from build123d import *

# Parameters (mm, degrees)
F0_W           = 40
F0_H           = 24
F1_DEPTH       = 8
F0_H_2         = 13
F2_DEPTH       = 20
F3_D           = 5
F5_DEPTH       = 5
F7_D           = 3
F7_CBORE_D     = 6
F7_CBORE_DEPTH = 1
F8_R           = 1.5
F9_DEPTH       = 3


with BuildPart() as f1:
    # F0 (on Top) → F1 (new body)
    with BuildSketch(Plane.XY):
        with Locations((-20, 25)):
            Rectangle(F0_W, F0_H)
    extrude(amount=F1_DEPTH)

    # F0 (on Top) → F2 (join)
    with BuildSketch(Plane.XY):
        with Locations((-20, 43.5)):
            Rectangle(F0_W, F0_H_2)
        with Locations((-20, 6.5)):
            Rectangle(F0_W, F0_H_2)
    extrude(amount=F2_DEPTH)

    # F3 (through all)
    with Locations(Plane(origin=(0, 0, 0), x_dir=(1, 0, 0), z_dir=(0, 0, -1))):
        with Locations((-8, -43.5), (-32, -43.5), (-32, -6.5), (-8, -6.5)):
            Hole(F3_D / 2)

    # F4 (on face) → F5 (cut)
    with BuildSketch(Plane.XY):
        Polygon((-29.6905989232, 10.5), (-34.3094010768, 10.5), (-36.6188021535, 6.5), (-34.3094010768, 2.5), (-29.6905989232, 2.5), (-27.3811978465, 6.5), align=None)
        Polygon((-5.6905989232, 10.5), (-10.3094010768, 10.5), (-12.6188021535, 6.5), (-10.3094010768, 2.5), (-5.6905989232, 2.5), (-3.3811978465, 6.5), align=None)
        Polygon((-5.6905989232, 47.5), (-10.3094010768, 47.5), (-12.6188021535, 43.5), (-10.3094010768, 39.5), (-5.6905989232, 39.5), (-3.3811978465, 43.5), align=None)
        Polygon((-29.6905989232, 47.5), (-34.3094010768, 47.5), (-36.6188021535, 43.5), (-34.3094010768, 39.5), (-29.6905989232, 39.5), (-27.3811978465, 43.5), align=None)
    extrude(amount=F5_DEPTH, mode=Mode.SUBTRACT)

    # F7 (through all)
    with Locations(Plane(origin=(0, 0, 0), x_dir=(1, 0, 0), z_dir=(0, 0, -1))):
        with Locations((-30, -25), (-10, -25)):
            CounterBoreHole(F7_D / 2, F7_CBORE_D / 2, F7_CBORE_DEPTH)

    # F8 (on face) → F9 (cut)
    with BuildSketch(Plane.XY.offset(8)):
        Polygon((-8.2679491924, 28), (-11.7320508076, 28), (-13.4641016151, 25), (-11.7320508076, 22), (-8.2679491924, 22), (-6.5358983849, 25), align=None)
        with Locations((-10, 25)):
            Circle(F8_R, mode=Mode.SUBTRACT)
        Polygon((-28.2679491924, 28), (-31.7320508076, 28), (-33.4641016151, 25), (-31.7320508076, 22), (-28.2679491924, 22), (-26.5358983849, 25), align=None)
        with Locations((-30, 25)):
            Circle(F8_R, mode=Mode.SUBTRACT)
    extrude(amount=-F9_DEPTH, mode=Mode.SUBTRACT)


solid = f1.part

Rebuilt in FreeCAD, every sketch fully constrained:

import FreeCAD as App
import Part
import Sketcher
from FreeCAD import Vector
Q = App.Units.Quantity

doc = App.newDocument("Part")
body = doc.addObject("PartDesign::Body", "Body")

# Sketch on XY plane
sketch1 = body.newObject("Sketcher::SketchObject", "Sketch")
sketch1.AttachmentSupport = (doc.getObject("XY_Plane"), [""])
sketch1.MapMode = "FlatFace"
sketch1.addGeometry([
    Part.LineSegment(Vector(-40, 37, 0), Vector(-40, 13, 0)),
    Part.LineSegment(Vector(-40, 13, 0), Vector(0, 13, 0)),
    Part.LineSegment(Vector(0, 13, 0), Vector(0, 37, 0)),
    Part.LineSegment(Vector(0, 37, 0), Vector(-40, 37, 0)),
], False)
sketch1.addConstraint([
    Sketcher.Constraint("Coincident", 0, 2, 1, 1),
    Sketcher.Constraint("Coincident", 1, 2, 2, 1),
    Sketcher.Constraint("Coincident", 2, 2, 3, 1),
    Sketcher.Constraint("Coincident", 3, 2, 0, 1),
    Sketcher.Constraint("Vertical", 0),
    Sketcher.Constraint("Horizontal", 1),
    Sketcher.Constraint("Vertical", 2),
    Sketcher.Constraint("Horizontal", 3),
    Sketcher.Constraint("PointOnObject", 1, 2, -2),
    Sketcher.Constraint("DistanceX", 1, 1, 1, 2, Q("40 mm")),
    Sketcher.Constraint("DistanceY", 0, 2, 0, 1, Q("24 mm")),
    Sketcher.Constraint("DistanceY", -1, 1, 0, 2, Q("13 mm")),
])
pad1 = body.newObject("PartDesign::Pad", "Pad")
pad1.Profile = sketch1
pad1.Length = 8

# Sketch on XY plane
sketch2 = body.newObject("Sketcher::SketchObject", "Sketch001")
sketch2.AttachmentSupport = (doc.getObject("XY_Plane"), [""])
sketch2.MapMode = "FlatFace"
sketch2.addGeometry([
    Part.LineSegment(Vector(-40, 50, 0), Vector(-40, 37, 0)),  # 0
    Part.LineSegment(Vector(-40, 37, 0), Vector(0, 37, 0)),  # 1
    Part.LineSegment(Vector(0, 37, 0), Vector(0, 50, 0)),  # 2
    Part.LineSegment(Vector(0, 50, 0), Vector(-40, 50, 0)),  # 3
    Part.LineSegment(Vector(-40, 13, 0), Vector(-40, 0, 0)),  # 4
    Part.LineSegment(Vector(-40, 0, 0), Vector(0, 0, 0)),  # 5
    Part.LineSegment(Vector(0, 0, 0), Vector(0, 13, 0)),  # 6
    Part.LineSegment(Vector(0, 13, 0), Vector(-40, 13, 0)),  # 7
], False)
sketch2.addConstraint([
    Sketcher.Constraint("Coincident", 0, 2, 1, 1),
    Sketcher.Constraint("Coincident", 1, 2, 2, 1),
    Sketcher.Constraint("Coincident", 2, 2, 3, 1),
    Sketcher.Constraint("Coincident", 3, 2, 0, 1),
    Sketcher.Constraint("Coincident", 4, 2, 5, 1),
    Sketcher.Constraint("Coincident", 5, 2, 6, 1),
    Sketcher.Constraint("Coincident", 6, 2, 7, 1),
    Sketcher.Constraint("Coincident", 7, 2, 4, 1),
    Sketcher.Constraint("Vertical", 0),
    Sketcher.Constraint("Horizontal", 1),
    Sketcher.Constraint("Vertical", 2),
    Sketcher.Constraint("Horizontal", 3),
    Sketcher.Constraint("Vertical", 4),
    Sketcher.Constraint("Horizontal", 5),
    Sketcher.Constraint("Vertical", 6),
    Sketcher.Constraint("Horizontal", 7),
    Sketcher.Constraint("Coincident", 5, 2, -1, 1),
    Sketcher.Constraint("PointOnObject", 1, 2, -2),
    Sketcher.Constraint("Vertical", 3, 2, 4, 2),
    Sketcher.Constraint("Equal", 2, 4),
    Sketcher.Constraint("DistanceX", 1, 1, 1, 2, Q("40 mm")),
    Sketcher.Constraint("DistanceY", 0, 2, 0, 1, Q("13 mm")),
    Sketcher.Constraint("DistanceY", -1, 1, 0, 2, Q("37 mm")),
])
pad2 = body.newObject("PartDesign::Pad", "Pad001")
pad2.Profile = sketch2
pad2.Length = 20

# Sketch on XY plane
sketch3 = body.newObject("Sketcher::SketchObject", "Sketch002")
sketch3.AttachmentSupport = (doc.getObject("XY_Plane"), [""])
sketch3.MapMode = "FlatFace"
sketch3.addGeometry([
    Part.Circle(Vector(-8, 43.5, 0), Vector(0, 0, 1), 2.5),
    Part.Circle(Vector(-32, 43.5, 0), Vector(0, 0, 1), 2.5),
    Part.Circle(Vector(-32, 6.5, 0), Vector(0, 0, 1), 2.5),
    Part.Circle(Vector(-8, 6.5, 0), Vector(0, 0, 1), 2.5),
], False)
sketch3.addConstraint([
    Sketcher.Constraint("Equal", 0, 1),
    Sketcher.Constraint("Equal", 1, 2),
    Sketcher.Constraint("Equal", 2, 3),
    Sketcher.Constraint("Horizontal", 0, 3, 1, 3),
    Sketcher.Constraint("Horizontal", 2, 3, 3, 3),
    Sketcher.Constraint("Vertical", 1, 3, 2, 3),
    Sketcher.Constraint("Vertical", 0, 3, 3, 3),
    Sketcher.Constraint("Diameter", 0, Q("5 mm")),
    Sketcher.Constraint("DistanceX", 0, 3, -1, 1, Q("8 mm")),
    Sketcher.Constraint("DistanceX", 1, 3, -1, 1, Q("32 mm")),
    Sketcher.Constraint("DistanceY", 2, 3, 1, 3, Q("37 mm")),
    Sketcher.Constraint("DistanceY", -1, 1, 0, 3, Q("43.5 mm")),
])
doc.recompute()
hole = body.newObject("PartDesign::Hole", "Hole")
hole.Profile = sketch3
hole.ThreadType = "None"
hole.Diameter = 5
hole.DepthType = "ThroughAll"
hole.Reversed = True

# Sketch on XY plane
sketch4 = body.newObject("Sketcher::SketchObject", "Sketch003")
sketch4.AttachmentSupport = (doc.getObject("XY_Plane"), [""])
sketch4.MapMode = "FlatFace"
sketch4.addGeometry([
    Part.LineSegment(Vector(-29.7, 10.5, 0), Vector(-34.3, 10.5, 0)),  # 0
    Part.LineSegment(Vector(-34.3, 10.5, 0), Vector(-36.6, 6.5, 0)),  # 1
    Part.LineSegment(Vector(-36.6, 6.5, 0), Vector(-34.3, 2.5, 0)),  # 2
    Part.LineSegment(Vector(-34.3, 2.5, 0), Vector(-29.7, 2.5, 0)),  # 3
    Part.LineSegment(Vector(-29.7, 2.5, 0), Vector(-27.4, 6.5, 0)),  # 4
    Part.LineSegment(Vector(-27.4, 6.5, 0), Vector(-29.7, 10.5, 0)),  # 5
    Part.LineSegment(Vector(-5.7, 10.5, 0), Vector(-10.3, 10.5, 0)),  # 6
    Part.LineSegment(Vector(-10.3, 10.5, 0), Vector(-12.6, 6.5, 0)),  # 7
    Part.LineSegment(Vector(-12.6, 6.5, 0), Vector(-10.3, 2.5, 0)),  # 8
    Part.LineSegment(Vector(-10.3, 2.5, 0), Vector(-5.7, 2.5, 0)),  # 9
    Part.LineSegment(Vector(-5.7, 2.5, 0), Vector(-3.4, 6.5, 0)),  # 10
    Part.LineSegment(Vector(-3.4, 6.5, 0), Vector(-5.7, 10.5, 0)),  # 11
    Part.LineSegment(Vector(-5.7, 47.5, 0), Vector(-10.3, 47.5, 0)),  # 12
    Part.LineSegment(Vector(-10.3, 47.5, 0), Vector(-12.6, 43.5, 0)),  # 13
    Part.LineSegment(Vector(-12.6, 43.5, 0), Vector(-10.3, 39.5, 0)),  # 14
    Part.LineSegment(Vector(-10.3, 39.5, 0), Vector(-5.7, 39.5, 0)),  # 15
    Part.LineSegment(Vector(-5.7, 39.5, 0), Vector(-3.4, 43.5, 0)),  # 16
    Part.LineSegment(Vector(-3.4, 43.5, 0), Vector(-5.7, 47.5, 0)),  # 17
    Part.LineSegment(Vector(-29.7, 47.5, 0), Vector(-34.3, 47.5, 0)),  # 18
    Part.LineSegment(Vector(-34.3, 47.5, 0), Vector(-36.6, 43.5, 0)),  # 19
    Part.LineSegment(Vector(-36.6, 43.5, 0), Vector(-34.3, 39.5, 0)),  # 20
    Part.LineSegment(Vector(-34.3, 39.5, 0), Vector(-29.7, 39.5, 0)),  # 21
    Part.LineSegment(Vector(-29.7, 39.5, 0), Vector(-27.4, 43.5, 0)),  # 22
    Part.LineSegment(Vector(-27.4, 43.5, 0), Vector(-29.7, 47.5, 0)),  # 23
], False)
sketch4.addConstraint([
    Sketcher.Constraint("Coincident", 0, 2, 1, 1),
    Sketcher.Constraint("Coincident", 1, 2, 2, 1),
    Sketcher.Constraint("Coincident", 2, 2, 3, 1),
    Sketcher.Constraint("Coincident", 3, 2, 4, 1),
    Sketcher.Constraint("Coincident", 4, 2, 5, 1),
    Sketcher.Constraint("Coincident", 5, 2, 0, 1),
    Sketcher.Constraint("Coincident", 6, 2, 7, 1),
    Sketcher.Constraint("Coincident", 7, 2, 8, 1),
    Sketcher.Constraint("Coincident", 8, 2, 9, 1),
    Sketcher.Constraint("Coincident", 9, 2, 10, 1),
    Sketcher.Constraint("Coincident", 10, 2, 11, 1),
    Sketcher.Constraint("Coincident", 11, 2, 6, 1),
    Sketcher.Constraint("Coincident", 12, 2, 13, 1),
    Sketcher.Constraint("Coincident", 13, 2, 14, 1),
    Sketcher.Constraint("Coincident", 14, 2, 15, 1),
    Sketcher.Constraint("Coincident", 15, 2, 16, 1),
    Sketcher.Constraint("Coincident", 16, 2, 17, 1),
    Sketcher.Constraint("Coincident", 17, 2, 12, 1),
    Sketcher.Constraint("Coincident", 18, 2, 19, 1),
    Sketcher.Constraint("Coincident", 19, 2, 20, 1),
    Sketcher.Constraint("Coincident", 20, 2, 21, 1),
    Sketcher.Constraint("Coincident", 21, 2, 22, 1),
    Sketcher.Constraint("Coincident", 22, 2, 23, 1),
    Sketcher.Constraint("Coincident", 23, 2, 18, 1),
    Sketcher.Constraint("Horizontal", 0),
    Sketcher.Constraint("Horizontal", 3),
    Sketcher.Constraint("Horizontal", 6),
    Sketcher.Constraint("Horizontal", 9),
    Sketcher.Constraint("Horizontal", 12),
    Sketcher.Constraint("Horizontal", 15),
    Sketcher.Constraint("Horizontal", 18),
    Sketcher.Constraint("Horizontal", 21),
    Sketcher.Constraint("Parallel", 1, 4),
    Sketcher.Constraint("Parallel", 2, 5),
    Sketcher.Constraint("Parallel", 4, 7),
    Sketcher.Constraint("Parallel", 5, 8),
    Sketcher.Constraint("Parallel", 7, 10),
    Sketcher.Constraint("Parallel", 8, 11),
    Sketcher.Constraint("Parallel", 10, 13),
    Sketcher.Constraint("Parallel", 11, 14),
    Sketcher.Constraint("Parallel", 13, 16),
    Sketcher.Constraint("Parallel", 14, 17),
    Sketcher.Constraint("Parallel", 16, 19),
    Sketcher.Constraint("Parallel", 17, 20),
    Sketcher.Constraint("Parallel", 19, 22),
    Sketcher.Constraint("Parallel", 20, 23),
    Sketcher.Constraint("Horizontal", 1, 2, 4, 2),
    Sketcher.Constraint("Horizontal", 5, 2, 6, 2),
    Sketcher.Constraint("Horizontal", 4, 2, 7, 2),
    Sketcher.Constraint("Horizontal", 3, 2, 8, 2),
    Sketcher.Constraint("Horizontal", 7, 2, 10, 2),
    Sketcher.Constraint("Horizontal", 13, 2, 16, 2),
    Sketcher.Constraint("Horizontal", 17, 2, 18, 2),
    Sketcher.Constraint("Horizontal", 16, 2, 19, 2),
    Sketcher.Constraint("Horizontal", 15, 2, 20, 2),
    Sketcher.Constraint("Horizontal", 19, 2, 22, 2),
    Sketcher.Constraint("Vertical", 0, 2, 2, 2),
    Sketcher.Constraint("Vertical", 3, 2, 5, 2),
    Sketcher.Constraint("Vertical", 8, 2, 12, 2),
    Sketcher.Constraint("Vertical", 7, 2, 13, 2),
    Sketcher.Constraint("Vertical", 12, 2, 14, 2),
    Sketcher.Constraint("Vertical", 11, 2, 15, 2),
    Sketcher.Constraint("Vertical", 2, 2, 18, 2),
    Sketcher.Constraint("Vertical", 5, 2, 21, 2),
    Sketcher.Constraint("Equal", 3, 6),
    Sketcher.Constraint("Angle", 1, Q("-120 deg")),
    Sketcher.Constraint("DistanceY", 1, 2, 0, 2, Q("4 mm")),
    Sketcher.Constraint("DistanceX", 0, 2, 6, 2, Q("24 mm")),
    Sketcher.Constraint("DistanceY", 6, 2, 12, 2, Q("37 mm")),
    Sketcher.Constraint("DistanceY", -1, 1, 0, 2, Q("10.5 mm")),
    Sketcher.Constraint("DistanceX", 0, 2, -1, 1, Q("34.309401 mm")),
    Sketcher.Constraint("DistanceX", 3, 2, -1, 1, Q("29.690599 mm")),
])
pocket1 = body.newObject("PartDesign::Pocket", "Pocket")
pocket1.Profile = sketch4
pocket1.Length = 5
pocket1.Reversed = True

# Sketch on XY plane
sketch5 = body.newObject("Sketcher::SketchObject", "Sketch004")
sketch5.AttachmentSupport = (doc.getObject("XY_Plane"), [""])
sketch5.MapMode = "FlatFace"
sketch5.addGeometry([
    Part.Circle(Vector(-30, 25, 0), Vector(0, 0, 1), 1.5),
    Part.Circle(Vector(-10, 25, 0), Vector(0, 0, 1), 1.5),
], False)
sketch5.addConstraint([
    Sketcher.Constraint("Equal", 0, 1),
    Sketcher.Constraint("Horizontal", 0, 3, 1, 3),
    Sketcher.Constraint("Diameter", 0, Q("3 mm")),
    Sketcher.Constraint("DistanceX", 0, 3, -1, 1, Q("30 mm")),
    Sketcher.Constraint("DistanceY", -1, 1, 0, 3, Q("25 mm")),
    Sketcher.Constraint("DistanceX", 1, 3, -1, 1, Q("10 mm")),
])
doc.recompute()
hole2 = body.newObject("PartDesign::Hole", "Hole001")
hole2.Profile = sketch5
hole2.ThreadType = "None"
hole2.Diameter = 3
hole2.DepthType = "ThroughAll"
hole2.HoleCutType = "Counterbore"
hole2.HoleCutDiameter = 6
hole2.HoleCutDepth = 1
hole2.Reversed = True

# Sketch on XY plane
sketch6 = body.newObject("Sketcher::SketchObject", "Sketch005")
sketch6.AttachmentSupport = (doc.getObject("XY_Plane"), [""])
sketch6.MapMode = "FlatFace"
sketch6.AttachmentOffset = App.Placement(Vector(0, 0, 8), App.Rotation())
sketch6.addGeometry([
    Part.LineSegment(Vector(-8.3, 28, 0), Vector(-11.7, 28, 0)),  # 0
    Part.LineSegment(Vector(-11.7, 28, 0), Vector(-13.5, 25, 0)),  # 1
    Part.LineSegment(Vector(-13.5, 25, 0), Vector(-11.7, 22, 0)),  # 2
    Part.LineSegment(Vector(-11.7, 22, 0), Vector(-8.3, 22, 0)),  # 3
    Part.LineSegment(Vector(-8.3, 22, 0), Vector(-6.5, 25, 0)),  # 4
    Part.LineSegment(Vector(-6.5, 25, 0), Vector(-8.3, 28, 0)),  # 5
    Part.Circle(Vector(-10, 25, 0), Vector(0, 0, 1), 1.5),  # 6
    Part.LineSegment(Vector(-28.3, 28, 0), Vector(-31.7, 28, 0)),  # 7
    Part.LineSegment(Vector(-31.7, 28, 0), Vector(-33.5, 25, 0)),  # 8
    Part.LineSegment(Vector(-33.5, 25, 0), Vector(-31.7, 22, 0)),  # 9
    Part.LineSegment(Vector(-31.7, 22, 0), Vector(-28.3, 22, 0)),  # 10
    Part.LineSegment(Vector(-28.3, 22, 0), Vector(-26.5, 25, 0)),  # 11
    Part.LineSegment(Vector(-26.5, 25, 0), Vector(-28.3, 28, 0)),  # 12
    Part.Circle(Vector(-30, 25, 0), Vector(0, 0, 1), 1.5),  # 13
], False)
sketch6.addConstraint([
    Sketcher.Constraint("Coincident", 0, 2, 1, 1),
    Sketcher.Constraint("Coincident", 1, 2, 2, 1),
    Sketcher.Constraint("Coincident", 2, 2, 3, 1),
    Sketcher.Constraint("Coincident", 3, 2, 4, 1),
    Sketcher.Constraint("Coincident", 4, 2, 5, 1),
    Sketcher.Constraint("Coincident", 5, 2, 0, 1),
    Sketcher.Constraint("Coincident", 7, 2, 8, 1),
    Sketcher.Constraint("Coincident", 8, 2, 9, 1),
    Sketcher.Constraint("Coincident", 9, 2, 10, 1),
    Sketcher.Constraint("Coincident", 10, 2, 11, 1),
    Sketcher.Constraint("Coincident", 11, 2, 12, 1),
    Sketcher.Constraint("Coincident", 12, 2, 7, 1),
    Sketcher.Constraint("Horizontal", 0),
    Sketcher.Constraint("Horizontal", 3),
    Sketcher.Constraint("Horizontal", 7),
    Sketcher.Constraint("Horizontal", 10),
    Sketcher.Constraint("Equal", 6, 13),
    Sketcher.Constraint("Parallel", 1, 4),
    Sketcher.Constraint("Parallel", 2, 5),
    Sketcher.Constraint("Parallel", 4, 8),
    Sketcher.Constraint("Parallel", 5, 9),
    Sketcher.Constraint("Parallel", 8, 11),
    Sketcher.Constraint("Parallel", 9, 12),
    Sketcher.Constraint("Horizontal", 6, 3, 13, 3),
    Sketcher.Constraint("Horizontal", 13, 3, 1, 2),
    Sketcher.Constraint("Horizontal", 1, 2, 4, 2),
    Sketcher.Constraint("Horizontal", 5, 2, 7, 2),
    Sketcher.Constraint("Horizontal", 4, 2, 8, 2),
    Sketcher.Constraint("Horizontal", 3, 2, 9, 2),
    Sketcher.Constraint("Horizontal", 8, 2, 11, 2),
    Sketcher.Constraint("Vertical", 0, 2, 2, 2),
    Sketcher.Constraint("Vertical", 3, 2, 5, 2),
    Sketcher.Constraint("Equal", 3, 7),
    Sketcher.Constraint("Diameter", 6, Q("3 mm")),
    Sketcher.Constraint("Angle", 1, Q("-120 deg")),
    Sketcher.Constraint("DistanceX", 6, 3, -1, 1, Q("10 mm")),
    Sketcher.Constraint("DistanceY", -1, 1, 6, 3, Q("25 mm")),
    Sketcher.Constraint("DistanceX", 13, 3, -1, 1, Q("30 mm")),
    Sketcher.Constraint("DistanceY", -1, 1, 0, 2, Q("28 mm")),
    Sketcher.Constraint("DistanceX", 7, 2, 0, 2, Q("20 mm")),
    Sketcher.Constraint("DistanceX", 0, 2, 0, 1, Q("3.464102 mm")),
    Sketcher.Constraint("DistanceX", 1, 2, -1, 1, Q("13.464102 mm")),
])
pocket2 = body.newObject("PartDesign::Pocket", "Pocket001")
pocket2.Profile = sketch6
pocket2.Length = 3

doc.recompute()
